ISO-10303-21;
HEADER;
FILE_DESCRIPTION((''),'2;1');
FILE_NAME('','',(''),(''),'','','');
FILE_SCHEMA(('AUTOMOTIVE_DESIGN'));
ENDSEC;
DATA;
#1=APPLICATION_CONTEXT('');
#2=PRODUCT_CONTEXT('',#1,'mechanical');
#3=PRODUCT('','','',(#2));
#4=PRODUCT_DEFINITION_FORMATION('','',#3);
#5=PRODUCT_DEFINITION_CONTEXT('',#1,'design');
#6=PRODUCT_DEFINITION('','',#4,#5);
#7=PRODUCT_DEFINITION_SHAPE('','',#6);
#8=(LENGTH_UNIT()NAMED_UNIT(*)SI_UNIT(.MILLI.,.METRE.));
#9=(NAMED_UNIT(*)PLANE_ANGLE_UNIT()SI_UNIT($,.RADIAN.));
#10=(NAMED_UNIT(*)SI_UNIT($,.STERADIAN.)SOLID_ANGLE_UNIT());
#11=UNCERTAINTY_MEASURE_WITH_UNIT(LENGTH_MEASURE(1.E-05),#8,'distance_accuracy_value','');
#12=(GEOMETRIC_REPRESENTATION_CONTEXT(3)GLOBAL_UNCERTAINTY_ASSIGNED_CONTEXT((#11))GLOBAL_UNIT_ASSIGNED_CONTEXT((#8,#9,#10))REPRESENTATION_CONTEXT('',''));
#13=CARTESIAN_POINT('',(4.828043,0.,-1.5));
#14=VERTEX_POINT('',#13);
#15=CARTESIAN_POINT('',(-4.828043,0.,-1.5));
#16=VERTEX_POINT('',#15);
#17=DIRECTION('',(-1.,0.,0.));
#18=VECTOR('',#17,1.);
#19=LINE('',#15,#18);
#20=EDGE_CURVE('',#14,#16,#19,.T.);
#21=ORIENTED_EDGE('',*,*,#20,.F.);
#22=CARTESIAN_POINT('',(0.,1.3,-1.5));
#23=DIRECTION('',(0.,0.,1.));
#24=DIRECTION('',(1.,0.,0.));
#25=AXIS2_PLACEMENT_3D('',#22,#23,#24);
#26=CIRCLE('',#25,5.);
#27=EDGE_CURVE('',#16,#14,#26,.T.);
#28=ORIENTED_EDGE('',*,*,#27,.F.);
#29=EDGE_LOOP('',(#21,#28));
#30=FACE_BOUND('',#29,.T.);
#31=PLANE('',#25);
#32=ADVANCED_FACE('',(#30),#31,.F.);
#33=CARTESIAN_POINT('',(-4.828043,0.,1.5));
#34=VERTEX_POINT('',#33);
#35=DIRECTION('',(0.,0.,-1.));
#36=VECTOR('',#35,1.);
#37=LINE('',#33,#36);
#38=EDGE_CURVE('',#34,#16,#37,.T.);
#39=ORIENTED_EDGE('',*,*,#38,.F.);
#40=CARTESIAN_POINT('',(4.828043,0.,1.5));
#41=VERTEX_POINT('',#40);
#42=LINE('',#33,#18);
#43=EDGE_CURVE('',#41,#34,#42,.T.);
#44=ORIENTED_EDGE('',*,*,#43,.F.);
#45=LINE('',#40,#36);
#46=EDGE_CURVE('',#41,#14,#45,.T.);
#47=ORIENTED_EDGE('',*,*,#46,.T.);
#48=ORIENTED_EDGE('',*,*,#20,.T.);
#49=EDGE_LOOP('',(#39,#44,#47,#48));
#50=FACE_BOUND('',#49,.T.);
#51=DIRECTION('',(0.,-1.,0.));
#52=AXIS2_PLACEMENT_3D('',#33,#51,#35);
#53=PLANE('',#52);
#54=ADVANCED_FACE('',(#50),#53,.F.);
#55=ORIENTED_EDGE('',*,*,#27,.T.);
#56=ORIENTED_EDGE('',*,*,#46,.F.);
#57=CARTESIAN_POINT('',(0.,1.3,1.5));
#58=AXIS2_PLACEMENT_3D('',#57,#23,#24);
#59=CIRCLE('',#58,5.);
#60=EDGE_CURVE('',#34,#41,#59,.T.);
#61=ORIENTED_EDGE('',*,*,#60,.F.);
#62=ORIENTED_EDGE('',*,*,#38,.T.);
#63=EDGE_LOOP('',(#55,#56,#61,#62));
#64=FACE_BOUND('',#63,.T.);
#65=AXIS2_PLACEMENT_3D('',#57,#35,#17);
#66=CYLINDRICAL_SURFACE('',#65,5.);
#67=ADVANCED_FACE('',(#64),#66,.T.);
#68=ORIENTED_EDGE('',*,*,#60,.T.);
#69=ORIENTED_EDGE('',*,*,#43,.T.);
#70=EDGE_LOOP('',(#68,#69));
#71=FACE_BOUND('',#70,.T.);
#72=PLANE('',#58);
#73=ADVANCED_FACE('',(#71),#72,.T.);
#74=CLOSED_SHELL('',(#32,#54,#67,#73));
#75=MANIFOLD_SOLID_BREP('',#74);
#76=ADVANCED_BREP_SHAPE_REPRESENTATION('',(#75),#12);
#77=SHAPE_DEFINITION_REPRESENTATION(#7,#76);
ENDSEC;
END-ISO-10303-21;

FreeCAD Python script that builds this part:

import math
import FreeCAD as App
import Part
import Sketcher
from FreeCAD import Vector
Q = App.Units.Quantity

doc = App.newDocument("Part")
body = doc.addObject("PartDesign::Body", "Body")

# Sketch on XY plane
sketch1 = body.newObject("Sketcher::SketchObject", "Sketch")
sketch1.AttachmentSupport = (doc.getObject("XY_Plane"), [""])
sketch1.MapMode = "FlatFace"
sketch1.addGeometry(Part.LineSegment(Vector(5, 0, 0), Vector(-5, 0, 0)), False)
sketch1.addGeometry(Part.ArcOfCircle(Part.Circle(Vector(0, 1, 0), Vector(0, 0, 1), 5), math.radians(-165), math.radians(-15)), False)
sketch1.addConstraint(Sketcher.Constraint("Coincident", 0, 1, 1, 2))
sketch1.addConstraint(Sketcher.Constraint("Coincident", 1, 1, 0, 2))
sketch1.addConstraint(Sketcher.Constraint("Horizontal", 0))
sketch1.addConstraint(Sketcher.Constraint("Symmetric", 0, 1, 1, 1, -1, 1))
sketch1.addConstraint(Sketcher.Constraint("Radius", 1, Q("5 mm")))
sketch1.addConstraint(Sketcher.Constraint("DistanceY", -1, 1, 1, 3, Q("1.3 mm")))
pad1 = body.newObject("PartDesign::Pad", "Pad")
pad1.Profile = sketch1
pad1.Length = 3
pad1.Midplane = True

doc.recompute()
